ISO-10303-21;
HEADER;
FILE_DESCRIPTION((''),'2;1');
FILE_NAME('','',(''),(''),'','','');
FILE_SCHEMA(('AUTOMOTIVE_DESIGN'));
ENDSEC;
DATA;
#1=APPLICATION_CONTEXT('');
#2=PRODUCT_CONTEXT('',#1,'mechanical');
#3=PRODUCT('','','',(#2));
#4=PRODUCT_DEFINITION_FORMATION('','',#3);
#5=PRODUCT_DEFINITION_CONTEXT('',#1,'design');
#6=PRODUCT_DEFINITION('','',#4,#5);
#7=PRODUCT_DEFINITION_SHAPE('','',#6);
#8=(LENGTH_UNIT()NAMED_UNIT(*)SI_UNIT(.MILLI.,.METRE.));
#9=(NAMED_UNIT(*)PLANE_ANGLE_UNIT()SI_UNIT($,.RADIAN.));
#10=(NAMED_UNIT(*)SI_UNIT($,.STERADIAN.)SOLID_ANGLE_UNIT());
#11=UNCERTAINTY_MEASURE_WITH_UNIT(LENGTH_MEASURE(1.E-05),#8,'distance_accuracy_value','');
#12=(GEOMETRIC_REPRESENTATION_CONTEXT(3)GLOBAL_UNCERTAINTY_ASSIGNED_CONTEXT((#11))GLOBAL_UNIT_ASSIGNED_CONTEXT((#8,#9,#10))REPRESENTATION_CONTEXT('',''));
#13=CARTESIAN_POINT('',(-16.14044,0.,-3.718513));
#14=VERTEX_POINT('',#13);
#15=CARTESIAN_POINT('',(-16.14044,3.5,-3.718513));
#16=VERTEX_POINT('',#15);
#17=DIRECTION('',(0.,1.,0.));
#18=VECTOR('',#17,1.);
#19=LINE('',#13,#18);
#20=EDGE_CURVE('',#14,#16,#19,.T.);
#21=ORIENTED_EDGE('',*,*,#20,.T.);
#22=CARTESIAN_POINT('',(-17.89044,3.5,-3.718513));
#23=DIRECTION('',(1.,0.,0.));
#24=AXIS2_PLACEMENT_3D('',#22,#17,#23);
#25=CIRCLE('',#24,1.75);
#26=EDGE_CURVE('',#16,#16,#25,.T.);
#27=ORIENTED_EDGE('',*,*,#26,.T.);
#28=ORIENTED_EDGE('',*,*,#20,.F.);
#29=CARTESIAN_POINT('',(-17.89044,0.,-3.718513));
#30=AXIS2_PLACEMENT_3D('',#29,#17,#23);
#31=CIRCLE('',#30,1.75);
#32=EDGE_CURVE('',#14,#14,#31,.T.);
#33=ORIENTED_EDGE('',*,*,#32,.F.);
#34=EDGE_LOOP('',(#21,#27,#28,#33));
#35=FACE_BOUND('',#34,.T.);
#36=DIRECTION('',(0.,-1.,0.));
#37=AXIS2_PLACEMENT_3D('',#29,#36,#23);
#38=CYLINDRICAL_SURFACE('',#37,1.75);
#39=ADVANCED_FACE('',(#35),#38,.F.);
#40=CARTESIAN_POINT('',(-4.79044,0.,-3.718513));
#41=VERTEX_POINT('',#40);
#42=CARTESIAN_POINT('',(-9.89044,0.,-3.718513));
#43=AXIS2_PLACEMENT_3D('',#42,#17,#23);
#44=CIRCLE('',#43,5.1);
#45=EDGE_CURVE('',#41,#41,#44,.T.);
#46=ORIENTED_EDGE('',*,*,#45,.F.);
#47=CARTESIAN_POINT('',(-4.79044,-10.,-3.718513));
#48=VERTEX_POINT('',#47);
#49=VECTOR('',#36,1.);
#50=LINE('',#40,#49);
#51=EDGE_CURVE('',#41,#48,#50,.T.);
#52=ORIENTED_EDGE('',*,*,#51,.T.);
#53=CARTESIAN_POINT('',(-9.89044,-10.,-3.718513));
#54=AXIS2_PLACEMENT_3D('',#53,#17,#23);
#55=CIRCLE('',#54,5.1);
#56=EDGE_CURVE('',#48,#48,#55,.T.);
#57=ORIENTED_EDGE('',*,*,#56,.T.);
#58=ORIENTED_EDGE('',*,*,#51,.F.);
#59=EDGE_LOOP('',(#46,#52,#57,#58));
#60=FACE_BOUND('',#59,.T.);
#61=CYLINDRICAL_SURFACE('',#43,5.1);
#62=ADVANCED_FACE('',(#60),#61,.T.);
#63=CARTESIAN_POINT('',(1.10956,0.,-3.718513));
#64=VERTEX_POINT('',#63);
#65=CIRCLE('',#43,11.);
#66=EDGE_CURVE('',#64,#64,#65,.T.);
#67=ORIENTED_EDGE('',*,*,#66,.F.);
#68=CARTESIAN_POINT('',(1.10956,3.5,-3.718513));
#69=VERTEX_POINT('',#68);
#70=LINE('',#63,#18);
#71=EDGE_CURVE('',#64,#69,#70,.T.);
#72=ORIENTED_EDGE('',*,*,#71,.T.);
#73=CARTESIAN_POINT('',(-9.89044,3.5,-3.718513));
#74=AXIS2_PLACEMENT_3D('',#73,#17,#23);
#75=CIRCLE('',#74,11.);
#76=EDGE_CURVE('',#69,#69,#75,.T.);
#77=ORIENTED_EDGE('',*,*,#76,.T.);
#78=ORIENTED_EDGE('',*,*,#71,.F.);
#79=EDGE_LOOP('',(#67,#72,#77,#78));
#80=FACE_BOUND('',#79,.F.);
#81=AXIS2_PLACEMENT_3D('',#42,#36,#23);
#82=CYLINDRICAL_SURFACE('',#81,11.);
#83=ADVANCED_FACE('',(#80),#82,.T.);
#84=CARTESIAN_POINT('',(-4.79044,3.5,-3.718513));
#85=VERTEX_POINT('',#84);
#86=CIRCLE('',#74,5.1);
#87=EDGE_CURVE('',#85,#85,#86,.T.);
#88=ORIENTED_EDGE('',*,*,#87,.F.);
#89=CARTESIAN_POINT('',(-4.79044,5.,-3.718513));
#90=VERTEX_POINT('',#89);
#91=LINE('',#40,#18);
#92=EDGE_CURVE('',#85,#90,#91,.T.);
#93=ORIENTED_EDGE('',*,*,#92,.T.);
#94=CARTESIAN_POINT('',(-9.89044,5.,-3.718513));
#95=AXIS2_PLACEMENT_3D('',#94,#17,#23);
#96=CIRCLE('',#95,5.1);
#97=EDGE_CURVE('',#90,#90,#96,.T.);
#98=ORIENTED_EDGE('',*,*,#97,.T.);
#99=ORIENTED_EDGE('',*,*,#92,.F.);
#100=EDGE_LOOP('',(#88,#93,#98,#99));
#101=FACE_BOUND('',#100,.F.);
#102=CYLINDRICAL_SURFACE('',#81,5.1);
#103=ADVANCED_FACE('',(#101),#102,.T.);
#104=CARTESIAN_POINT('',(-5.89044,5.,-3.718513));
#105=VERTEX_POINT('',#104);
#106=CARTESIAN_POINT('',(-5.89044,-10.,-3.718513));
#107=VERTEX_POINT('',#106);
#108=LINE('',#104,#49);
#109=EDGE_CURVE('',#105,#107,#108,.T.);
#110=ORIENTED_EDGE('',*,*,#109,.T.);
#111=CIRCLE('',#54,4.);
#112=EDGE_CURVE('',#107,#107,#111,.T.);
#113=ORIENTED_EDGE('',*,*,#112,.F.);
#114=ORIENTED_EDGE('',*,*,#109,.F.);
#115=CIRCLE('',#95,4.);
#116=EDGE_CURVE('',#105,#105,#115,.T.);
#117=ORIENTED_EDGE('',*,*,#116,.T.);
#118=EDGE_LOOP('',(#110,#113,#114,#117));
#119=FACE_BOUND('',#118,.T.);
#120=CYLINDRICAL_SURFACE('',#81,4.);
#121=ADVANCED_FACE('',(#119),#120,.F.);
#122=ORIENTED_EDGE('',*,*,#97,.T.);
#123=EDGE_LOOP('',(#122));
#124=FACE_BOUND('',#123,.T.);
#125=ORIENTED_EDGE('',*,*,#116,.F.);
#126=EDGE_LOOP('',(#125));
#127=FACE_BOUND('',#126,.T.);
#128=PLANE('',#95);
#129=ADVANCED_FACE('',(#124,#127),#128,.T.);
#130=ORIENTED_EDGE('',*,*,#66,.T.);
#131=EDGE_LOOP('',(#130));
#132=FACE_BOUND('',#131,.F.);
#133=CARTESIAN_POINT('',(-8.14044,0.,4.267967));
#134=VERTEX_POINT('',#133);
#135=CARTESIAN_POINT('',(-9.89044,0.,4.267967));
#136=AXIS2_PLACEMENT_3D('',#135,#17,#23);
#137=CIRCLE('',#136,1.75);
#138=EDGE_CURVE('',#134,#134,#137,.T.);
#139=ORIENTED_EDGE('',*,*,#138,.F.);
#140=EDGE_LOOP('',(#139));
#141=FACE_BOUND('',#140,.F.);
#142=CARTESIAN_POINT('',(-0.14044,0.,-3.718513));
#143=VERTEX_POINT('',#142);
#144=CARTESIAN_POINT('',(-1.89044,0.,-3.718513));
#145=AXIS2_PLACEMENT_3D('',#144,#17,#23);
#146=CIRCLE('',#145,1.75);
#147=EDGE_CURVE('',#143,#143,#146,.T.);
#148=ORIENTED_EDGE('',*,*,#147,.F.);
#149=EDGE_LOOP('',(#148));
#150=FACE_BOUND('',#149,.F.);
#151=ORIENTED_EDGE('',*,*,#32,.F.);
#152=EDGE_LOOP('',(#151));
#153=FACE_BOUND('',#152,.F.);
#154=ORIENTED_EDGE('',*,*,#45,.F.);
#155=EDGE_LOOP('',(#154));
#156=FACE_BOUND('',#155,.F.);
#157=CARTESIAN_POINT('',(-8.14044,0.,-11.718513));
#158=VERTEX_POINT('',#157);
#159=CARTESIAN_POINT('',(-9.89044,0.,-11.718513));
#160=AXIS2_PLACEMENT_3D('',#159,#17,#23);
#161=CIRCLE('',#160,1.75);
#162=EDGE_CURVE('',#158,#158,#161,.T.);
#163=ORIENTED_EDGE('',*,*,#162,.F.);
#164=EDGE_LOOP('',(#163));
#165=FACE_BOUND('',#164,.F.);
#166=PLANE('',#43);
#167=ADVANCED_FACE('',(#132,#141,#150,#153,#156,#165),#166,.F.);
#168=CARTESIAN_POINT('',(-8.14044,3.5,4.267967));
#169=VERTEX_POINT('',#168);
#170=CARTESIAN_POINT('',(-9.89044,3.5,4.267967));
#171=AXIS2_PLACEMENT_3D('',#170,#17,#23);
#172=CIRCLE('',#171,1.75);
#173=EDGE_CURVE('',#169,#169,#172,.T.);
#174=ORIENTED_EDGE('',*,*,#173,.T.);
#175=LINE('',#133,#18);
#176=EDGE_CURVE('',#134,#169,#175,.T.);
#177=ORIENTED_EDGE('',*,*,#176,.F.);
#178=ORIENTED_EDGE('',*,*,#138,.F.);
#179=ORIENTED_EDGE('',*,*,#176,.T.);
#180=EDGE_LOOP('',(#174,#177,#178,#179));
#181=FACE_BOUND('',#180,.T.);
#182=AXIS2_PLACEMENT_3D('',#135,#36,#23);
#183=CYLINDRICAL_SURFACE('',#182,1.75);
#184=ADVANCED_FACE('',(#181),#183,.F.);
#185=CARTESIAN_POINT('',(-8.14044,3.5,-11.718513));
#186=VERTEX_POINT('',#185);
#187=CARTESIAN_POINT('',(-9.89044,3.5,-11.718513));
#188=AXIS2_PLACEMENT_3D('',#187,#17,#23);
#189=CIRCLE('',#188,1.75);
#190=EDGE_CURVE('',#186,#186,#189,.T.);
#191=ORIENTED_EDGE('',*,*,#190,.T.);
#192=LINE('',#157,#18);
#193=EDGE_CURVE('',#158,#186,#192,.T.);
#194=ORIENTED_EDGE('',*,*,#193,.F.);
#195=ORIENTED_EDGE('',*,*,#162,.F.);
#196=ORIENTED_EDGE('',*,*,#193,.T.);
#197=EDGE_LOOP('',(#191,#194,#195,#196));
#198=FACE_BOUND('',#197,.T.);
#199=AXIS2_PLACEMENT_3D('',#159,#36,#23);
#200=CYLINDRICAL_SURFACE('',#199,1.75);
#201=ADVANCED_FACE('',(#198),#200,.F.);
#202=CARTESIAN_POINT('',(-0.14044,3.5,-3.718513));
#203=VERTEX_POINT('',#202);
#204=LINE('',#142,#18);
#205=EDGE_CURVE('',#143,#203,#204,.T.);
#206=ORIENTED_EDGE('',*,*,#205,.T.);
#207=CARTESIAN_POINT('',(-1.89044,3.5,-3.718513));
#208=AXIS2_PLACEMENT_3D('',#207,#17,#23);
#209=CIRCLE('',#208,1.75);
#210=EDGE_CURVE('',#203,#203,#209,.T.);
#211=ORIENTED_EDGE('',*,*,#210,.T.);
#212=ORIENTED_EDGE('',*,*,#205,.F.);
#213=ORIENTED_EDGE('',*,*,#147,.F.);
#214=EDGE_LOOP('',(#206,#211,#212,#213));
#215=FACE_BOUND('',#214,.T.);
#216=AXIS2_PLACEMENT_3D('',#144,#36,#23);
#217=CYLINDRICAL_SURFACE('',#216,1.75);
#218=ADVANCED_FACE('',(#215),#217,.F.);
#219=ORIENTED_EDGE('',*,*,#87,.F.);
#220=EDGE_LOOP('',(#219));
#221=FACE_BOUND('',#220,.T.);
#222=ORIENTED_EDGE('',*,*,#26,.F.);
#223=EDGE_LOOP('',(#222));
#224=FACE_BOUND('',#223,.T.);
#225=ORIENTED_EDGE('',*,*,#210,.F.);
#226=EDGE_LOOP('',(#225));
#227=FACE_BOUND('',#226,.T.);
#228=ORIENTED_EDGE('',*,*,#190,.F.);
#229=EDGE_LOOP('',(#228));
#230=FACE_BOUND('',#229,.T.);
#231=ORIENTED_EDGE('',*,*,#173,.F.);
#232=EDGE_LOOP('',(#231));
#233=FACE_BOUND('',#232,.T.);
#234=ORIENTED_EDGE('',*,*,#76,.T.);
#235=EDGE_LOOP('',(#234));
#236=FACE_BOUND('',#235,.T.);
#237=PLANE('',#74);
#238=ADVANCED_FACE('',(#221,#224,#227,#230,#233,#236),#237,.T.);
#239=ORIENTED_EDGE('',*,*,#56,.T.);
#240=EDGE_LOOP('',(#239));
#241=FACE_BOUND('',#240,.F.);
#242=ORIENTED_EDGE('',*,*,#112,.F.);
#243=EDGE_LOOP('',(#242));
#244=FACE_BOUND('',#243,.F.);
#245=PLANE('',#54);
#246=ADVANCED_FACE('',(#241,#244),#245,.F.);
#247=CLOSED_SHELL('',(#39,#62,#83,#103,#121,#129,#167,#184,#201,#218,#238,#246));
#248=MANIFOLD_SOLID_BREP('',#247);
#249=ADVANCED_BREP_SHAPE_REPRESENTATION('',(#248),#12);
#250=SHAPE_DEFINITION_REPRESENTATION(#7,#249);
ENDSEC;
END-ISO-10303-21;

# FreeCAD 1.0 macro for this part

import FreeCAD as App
import Part
import Sketcher

V = App.Vector
Q = App.Units.Quantity

doc = App.newDocument("Part")
body = doc.addObject("PartDesign::Body", "Body")
body.AllowCompound = True

# Sketch on XZ plane
sketch1 = doc.addObject("Sketcher::SketchObject", "Sketch")
body.addObject(sketch1)
sketch1.AttachmentSupport = (doc.XZ_Plane, [""])
sketch1.MapMode = "FlatFace"
sketch1.addGeometry(Part.Circle(V(-9.89044, -3.718513, 0), V(0, 0, 1), 11), False)
sketch1.addGeometry(Part.Circle(V(-17.89044, -3.718513, 0), V(0, 0, 1), 1.75), False)
sketch1.addGeometry(Part.Circle(V(-9.89044, 4.267967, 0), V(0, 0, 1), 1.75), False)
sketch1.addGeometry(Part.Circle(V(-9.89044, -3.718513, 0), V(0, 0, 1), 5.1), False)
sketch1.addGeometry(Part.Circle(V(-1.89044, -3.718513, 0), V(0, 0, 1), 1.75), False)
sketch1.addGeometry(Part.Circle(V(-9.89044, -11.718513, 0), V(0, 0, 1), 1.75), False)
sketch1.addConstraint(Sketcher.Constraint("Coincident", 3, 3, 0, 3))
sketch1.addConstraint(Sketcher.Constraint("Equal", 1, 2))
sketch1.addConstraint(Sketcher.Constraint("Equal", 2, 4))
sketch1.addConstraint(Sketcher.Constraint("Equal", 4, 5))
sketch1.addConstraint(Sketcher.Constraint("Horizontal", 0, 3, 1, 3))
sketch1.addConstraint(Sketcher.Constraint("Horizontal", 3, 3, 4, 3))
sketch1.addConstraint(Sketcher.Constraint("Vertical", 0, 3, 2, 3))
sketch1.addConstraint(Sketcher.Constraint("Vertical", 3, 3, 5, 3))
sketch1.addConstraint(Sketcher.Constraint("Diameter", 0, Q("22 mm")))
sketch1.addConstraint(Sketcher.Constraint("Diameter", 1, Q("3.5 mm")))
sketch1.addConstraint(Sketcher.Constraint("Diameter", 3, Q("10.2 mm")))
sketch1.addConstraint(Sketcher.Constraint("DistanceX", 1, 3, 0, 3, Q("8 mm")))
sketch1.addConstraint(Sketcher.Constraint("DistanceX", 0, 3, 4, 3, Q("8 mm")))
sketch1.addConstraint(Sketcher.Constraint("DistanceY", 5, 3, 0, 3, Q("8 mm")))
sketch1.addConstraint(Sketcher.Constraint("DistanceX", 0, 3, -1, 1, Q("9.89044 mm")))
sketch1.addConstraint(Sketcher.Constraint("DistanceY", 0, 3, 2, 3, Q("7.98648 mm")))
sketch1.addConstraint(Sketcher.Constraint("DistanceY", 0, 3, -1, 1, Q("3.718513 mm")))
pad1 = doc.addObject("PartDesign::Pad", "Pad")
body.addObject(pad1)
pad1.Profile = sketch1
pad1.Length = 3.5
pad1.Reversed = True

# Sketch on XZ plane
sketch2 = doc.addObject("Sketcher::SketchObject", "Sketch001")
body.addObject(sketch2)
sketch2.AttachmentSupport = (doc.XZ_Plane, [""])
sketch2.MapMode = "FlatFace"
sketch2.addGeometry(Part.Circle(V(-9.89044, -3.718513, 0), V(0, 0, 1), 5.1), False)
sketch2.addGeometry(Part.Circle(V(-9.89044, -3.718513, 0), V(0, 0, 1), 4), False)
sketch2.addConstraint(Sketcher.Constraint("Coincident", 1, 3, 0, 3))
sketch2.addConstraint(Sketcher.Constraint("Diameter", 1, Q("8 mm")))
sketch2.addConstraint(Sketcher.Constraint("Diameter", 0, Q("10.2 mm")))
sketch2.addConstraint(Sketcher.Constraint("DistanceX", 0, 3, -1, 1, Q("9.89044 mm")))
sketch2.addConstraint(Sketcher.Constraint("DistanceY", 0, 3, -1, 1, Q("3.718513 mm")))
pad2 = doc.addObject("PartDesign::Pad", "Pad001")
body.addObject(pad2)
pad2.Profile = sketch2
pad2.Length = 10

# Sketch on XZ plane
sketch3 = doc.addObject("Sketcher::SketchObject", "Sketch002")
body.addObject(sketch3)
sketch3.AttachmentSupport = (doc.XZ_Plane, [""])
sketch3.MapMode = "FlatFace"
sketch3.addGeometry(Part.Circle(V(-9.89044, -3.718513, 0), V(0, 0, 1), 5.1), False)
sketch3.addGeometry(Part.Circle(V(-9.89044, -3.718513, 0), V(0, 0, 1), 4), False)
sketch3.addConstraint(Sketcher.Constraint("Coincident", 1, 3, 0, 3))
sketch3.addConstraint(Sketcher.Constraint("Diameter", 1, Q("8 mm")))
sketch3.addConstraint(Sketcher.Constraint("Diameter", 0, Q("10.2 mm")))
sketch3.addConstraint(Sketcher.Constraint("DistanceX", 0, 3, -1, 1, Q("9.89044 mm")))
sketch3.addConstraint(Sketcher.Constraint("DistanceY", 0, 3, -1, 1, Q("3.718513 mm")))
pad3 = doc.addObject("PartDesign::Pad", "Pad002")
body.addObject(pad3)
pad3.Profile = sketch3
pad3.Length = 5
pad3.Reversed = True

doc.recompute()
